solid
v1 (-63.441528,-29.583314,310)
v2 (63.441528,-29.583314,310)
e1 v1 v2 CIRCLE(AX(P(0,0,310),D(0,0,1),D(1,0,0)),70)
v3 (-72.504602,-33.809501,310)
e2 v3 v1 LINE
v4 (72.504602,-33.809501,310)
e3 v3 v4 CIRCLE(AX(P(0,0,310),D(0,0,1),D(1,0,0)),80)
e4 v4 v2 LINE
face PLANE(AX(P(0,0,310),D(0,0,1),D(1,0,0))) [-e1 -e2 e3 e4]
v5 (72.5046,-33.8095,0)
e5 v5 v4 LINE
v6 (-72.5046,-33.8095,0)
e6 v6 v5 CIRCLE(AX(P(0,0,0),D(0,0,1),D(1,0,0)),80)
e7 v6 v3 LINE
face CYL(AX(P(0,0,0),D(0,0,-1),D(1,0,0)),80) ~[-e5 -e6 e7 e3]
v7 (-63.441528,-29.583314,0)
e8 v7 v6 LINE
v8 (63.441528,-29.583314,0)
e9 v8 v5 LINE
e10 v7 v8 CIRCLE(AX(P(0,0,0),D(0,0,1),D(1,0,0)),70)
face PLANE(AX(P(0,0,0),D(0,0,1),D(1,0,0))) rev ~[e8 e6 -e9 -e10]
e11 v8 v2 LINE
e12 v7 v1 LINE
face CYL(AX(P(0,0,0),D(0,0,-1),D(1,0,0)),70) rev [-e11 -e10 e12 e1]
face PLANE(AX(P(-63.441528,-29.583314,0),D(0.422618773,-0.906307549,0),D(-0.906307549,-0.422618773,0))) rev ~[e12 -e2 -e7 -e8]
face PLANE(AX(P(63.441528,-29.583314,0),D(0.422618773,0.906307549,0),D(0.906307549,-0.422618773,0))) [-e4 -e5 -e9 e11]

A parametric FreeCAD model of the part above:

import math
import FreeCAD as App
import Part
import Sketcher
Q = App.Units.Quantity

doc = App.newDocument("Part")
body = doc.addObject("PartDesign::Body", "Body")

sketch1 = body.newObject("Sketcher::SketchObject", "Sketch")
sketch1.AttachmentSupport = (doc.getObject("XY_Plane"), [""])
sketch1.MapMode = "FlatFace"
sketch1.addGeometry(Part.Circle(App.Vector(0, 0, 0), App.Vector(0, 0, 1), 80), False)
sketch1.addGeometry(Part.Circle(App.Vector(0, 0, 0), App.Vector(0, 0, 1), 70), False)
sketch1.addConstraint(Sketcher.Constraint("Coincident", 0, 3, -1, 1))
sketch1.addConstraint(Sketcher.Constraint("Coincident", 1, 3, -1, 1))
sketch1.addConstraint(Sketcher.Constraint("Diameter", 0, Q("160 mm")))
sketch1.addConstraint(Sketcher.Constraint("Diameter", 1, Q("140 mm")))
pad1 = body.newObject("PartDesign::Pad", "Pad")
pad1.Profile = sketch1
pad1.Length = 310

sketch2 = body.newObject("Sketcher::SketchObject", "Sketch001")
sketch2.AttachmentSupport = (doc.getObject("XY_Plane"), [""])
sketch2.MapMode = "FlatFace"
sketch2.addGeometry(Part.ArcOfCircle(Part.Circle(App.Vector(0, 0, 0), App.Vector(0, 0, 1), 80), math.radians(-25.000032), math.radians(205.000032)), False)
sketch2.addGeometry(Part.LineSegment(App.Vector(-72.5046, -33.8095, 0), App.Vector(-63.441528, -29.583314, 0)), False)
sketch2.addGeometry(Part.ArcOfCircle(Part.Circle(App.Vector(0, 0, 0), App.Vector(0, 0, 1), 70), math.radians(-25.000032), math.radians(205.000032)), False)
sketch2.addGeometry(Part.LineSegment(App.Vector(63.441528, -29.583314, 0), App.Vector(72.5046, -33.8095, 0)), False)
sketch2.addConstraint(Sketcher.Constraint("Coincident", 0, 2, 1, 1))
sketch2.addConstraint(Sketcher.Constraint("Coincident", 1, 2, 2, 2))
sketch2.addConstraint(Sketcher.Constraint("Coincident", 2, 1, 3, 1))
sketch2.addConstraint(Sketcher.Constraint("Coincident", 3, 2, 0, 1))
sketch2.addConstraint(Sketcher.Constraint("Coincident", 0, 3, -1, 1))
sketch2.addConstraint(Sketcher.Constraint("Coincident", 2, 3, -1, 1))
sketch2.addConstraint(Sketcher.Constraint("Horizontal", 1, 2, 2, 1))
sketch2.addConstraint(Sketcher.Constraint("Horizontal", 0, 2, 3, 2))
sketch2.addConstraint(Sketcher.Constraint("Radius", 0, Q("80 mm")))
sketch2.addConstraint(Sketcher.Constraint("Radius", 2, Q("70 mm")))
sketch2.addConstraint(Sketcher.Constraint("Angle", 1, Q("25 deg")))
sketch2.addConstraint(Sketcher.Constraint("DistanceX", 1, 2, 2, 1, Q("126.883 mm")))
pocket1 = body.newObject("PartDesign::Pocket", "Pocket")
pocket1.Profile = sketch2
pocket1.Type = "ThroughAll"
pocket1.Reversed = True

doc.recompute()
